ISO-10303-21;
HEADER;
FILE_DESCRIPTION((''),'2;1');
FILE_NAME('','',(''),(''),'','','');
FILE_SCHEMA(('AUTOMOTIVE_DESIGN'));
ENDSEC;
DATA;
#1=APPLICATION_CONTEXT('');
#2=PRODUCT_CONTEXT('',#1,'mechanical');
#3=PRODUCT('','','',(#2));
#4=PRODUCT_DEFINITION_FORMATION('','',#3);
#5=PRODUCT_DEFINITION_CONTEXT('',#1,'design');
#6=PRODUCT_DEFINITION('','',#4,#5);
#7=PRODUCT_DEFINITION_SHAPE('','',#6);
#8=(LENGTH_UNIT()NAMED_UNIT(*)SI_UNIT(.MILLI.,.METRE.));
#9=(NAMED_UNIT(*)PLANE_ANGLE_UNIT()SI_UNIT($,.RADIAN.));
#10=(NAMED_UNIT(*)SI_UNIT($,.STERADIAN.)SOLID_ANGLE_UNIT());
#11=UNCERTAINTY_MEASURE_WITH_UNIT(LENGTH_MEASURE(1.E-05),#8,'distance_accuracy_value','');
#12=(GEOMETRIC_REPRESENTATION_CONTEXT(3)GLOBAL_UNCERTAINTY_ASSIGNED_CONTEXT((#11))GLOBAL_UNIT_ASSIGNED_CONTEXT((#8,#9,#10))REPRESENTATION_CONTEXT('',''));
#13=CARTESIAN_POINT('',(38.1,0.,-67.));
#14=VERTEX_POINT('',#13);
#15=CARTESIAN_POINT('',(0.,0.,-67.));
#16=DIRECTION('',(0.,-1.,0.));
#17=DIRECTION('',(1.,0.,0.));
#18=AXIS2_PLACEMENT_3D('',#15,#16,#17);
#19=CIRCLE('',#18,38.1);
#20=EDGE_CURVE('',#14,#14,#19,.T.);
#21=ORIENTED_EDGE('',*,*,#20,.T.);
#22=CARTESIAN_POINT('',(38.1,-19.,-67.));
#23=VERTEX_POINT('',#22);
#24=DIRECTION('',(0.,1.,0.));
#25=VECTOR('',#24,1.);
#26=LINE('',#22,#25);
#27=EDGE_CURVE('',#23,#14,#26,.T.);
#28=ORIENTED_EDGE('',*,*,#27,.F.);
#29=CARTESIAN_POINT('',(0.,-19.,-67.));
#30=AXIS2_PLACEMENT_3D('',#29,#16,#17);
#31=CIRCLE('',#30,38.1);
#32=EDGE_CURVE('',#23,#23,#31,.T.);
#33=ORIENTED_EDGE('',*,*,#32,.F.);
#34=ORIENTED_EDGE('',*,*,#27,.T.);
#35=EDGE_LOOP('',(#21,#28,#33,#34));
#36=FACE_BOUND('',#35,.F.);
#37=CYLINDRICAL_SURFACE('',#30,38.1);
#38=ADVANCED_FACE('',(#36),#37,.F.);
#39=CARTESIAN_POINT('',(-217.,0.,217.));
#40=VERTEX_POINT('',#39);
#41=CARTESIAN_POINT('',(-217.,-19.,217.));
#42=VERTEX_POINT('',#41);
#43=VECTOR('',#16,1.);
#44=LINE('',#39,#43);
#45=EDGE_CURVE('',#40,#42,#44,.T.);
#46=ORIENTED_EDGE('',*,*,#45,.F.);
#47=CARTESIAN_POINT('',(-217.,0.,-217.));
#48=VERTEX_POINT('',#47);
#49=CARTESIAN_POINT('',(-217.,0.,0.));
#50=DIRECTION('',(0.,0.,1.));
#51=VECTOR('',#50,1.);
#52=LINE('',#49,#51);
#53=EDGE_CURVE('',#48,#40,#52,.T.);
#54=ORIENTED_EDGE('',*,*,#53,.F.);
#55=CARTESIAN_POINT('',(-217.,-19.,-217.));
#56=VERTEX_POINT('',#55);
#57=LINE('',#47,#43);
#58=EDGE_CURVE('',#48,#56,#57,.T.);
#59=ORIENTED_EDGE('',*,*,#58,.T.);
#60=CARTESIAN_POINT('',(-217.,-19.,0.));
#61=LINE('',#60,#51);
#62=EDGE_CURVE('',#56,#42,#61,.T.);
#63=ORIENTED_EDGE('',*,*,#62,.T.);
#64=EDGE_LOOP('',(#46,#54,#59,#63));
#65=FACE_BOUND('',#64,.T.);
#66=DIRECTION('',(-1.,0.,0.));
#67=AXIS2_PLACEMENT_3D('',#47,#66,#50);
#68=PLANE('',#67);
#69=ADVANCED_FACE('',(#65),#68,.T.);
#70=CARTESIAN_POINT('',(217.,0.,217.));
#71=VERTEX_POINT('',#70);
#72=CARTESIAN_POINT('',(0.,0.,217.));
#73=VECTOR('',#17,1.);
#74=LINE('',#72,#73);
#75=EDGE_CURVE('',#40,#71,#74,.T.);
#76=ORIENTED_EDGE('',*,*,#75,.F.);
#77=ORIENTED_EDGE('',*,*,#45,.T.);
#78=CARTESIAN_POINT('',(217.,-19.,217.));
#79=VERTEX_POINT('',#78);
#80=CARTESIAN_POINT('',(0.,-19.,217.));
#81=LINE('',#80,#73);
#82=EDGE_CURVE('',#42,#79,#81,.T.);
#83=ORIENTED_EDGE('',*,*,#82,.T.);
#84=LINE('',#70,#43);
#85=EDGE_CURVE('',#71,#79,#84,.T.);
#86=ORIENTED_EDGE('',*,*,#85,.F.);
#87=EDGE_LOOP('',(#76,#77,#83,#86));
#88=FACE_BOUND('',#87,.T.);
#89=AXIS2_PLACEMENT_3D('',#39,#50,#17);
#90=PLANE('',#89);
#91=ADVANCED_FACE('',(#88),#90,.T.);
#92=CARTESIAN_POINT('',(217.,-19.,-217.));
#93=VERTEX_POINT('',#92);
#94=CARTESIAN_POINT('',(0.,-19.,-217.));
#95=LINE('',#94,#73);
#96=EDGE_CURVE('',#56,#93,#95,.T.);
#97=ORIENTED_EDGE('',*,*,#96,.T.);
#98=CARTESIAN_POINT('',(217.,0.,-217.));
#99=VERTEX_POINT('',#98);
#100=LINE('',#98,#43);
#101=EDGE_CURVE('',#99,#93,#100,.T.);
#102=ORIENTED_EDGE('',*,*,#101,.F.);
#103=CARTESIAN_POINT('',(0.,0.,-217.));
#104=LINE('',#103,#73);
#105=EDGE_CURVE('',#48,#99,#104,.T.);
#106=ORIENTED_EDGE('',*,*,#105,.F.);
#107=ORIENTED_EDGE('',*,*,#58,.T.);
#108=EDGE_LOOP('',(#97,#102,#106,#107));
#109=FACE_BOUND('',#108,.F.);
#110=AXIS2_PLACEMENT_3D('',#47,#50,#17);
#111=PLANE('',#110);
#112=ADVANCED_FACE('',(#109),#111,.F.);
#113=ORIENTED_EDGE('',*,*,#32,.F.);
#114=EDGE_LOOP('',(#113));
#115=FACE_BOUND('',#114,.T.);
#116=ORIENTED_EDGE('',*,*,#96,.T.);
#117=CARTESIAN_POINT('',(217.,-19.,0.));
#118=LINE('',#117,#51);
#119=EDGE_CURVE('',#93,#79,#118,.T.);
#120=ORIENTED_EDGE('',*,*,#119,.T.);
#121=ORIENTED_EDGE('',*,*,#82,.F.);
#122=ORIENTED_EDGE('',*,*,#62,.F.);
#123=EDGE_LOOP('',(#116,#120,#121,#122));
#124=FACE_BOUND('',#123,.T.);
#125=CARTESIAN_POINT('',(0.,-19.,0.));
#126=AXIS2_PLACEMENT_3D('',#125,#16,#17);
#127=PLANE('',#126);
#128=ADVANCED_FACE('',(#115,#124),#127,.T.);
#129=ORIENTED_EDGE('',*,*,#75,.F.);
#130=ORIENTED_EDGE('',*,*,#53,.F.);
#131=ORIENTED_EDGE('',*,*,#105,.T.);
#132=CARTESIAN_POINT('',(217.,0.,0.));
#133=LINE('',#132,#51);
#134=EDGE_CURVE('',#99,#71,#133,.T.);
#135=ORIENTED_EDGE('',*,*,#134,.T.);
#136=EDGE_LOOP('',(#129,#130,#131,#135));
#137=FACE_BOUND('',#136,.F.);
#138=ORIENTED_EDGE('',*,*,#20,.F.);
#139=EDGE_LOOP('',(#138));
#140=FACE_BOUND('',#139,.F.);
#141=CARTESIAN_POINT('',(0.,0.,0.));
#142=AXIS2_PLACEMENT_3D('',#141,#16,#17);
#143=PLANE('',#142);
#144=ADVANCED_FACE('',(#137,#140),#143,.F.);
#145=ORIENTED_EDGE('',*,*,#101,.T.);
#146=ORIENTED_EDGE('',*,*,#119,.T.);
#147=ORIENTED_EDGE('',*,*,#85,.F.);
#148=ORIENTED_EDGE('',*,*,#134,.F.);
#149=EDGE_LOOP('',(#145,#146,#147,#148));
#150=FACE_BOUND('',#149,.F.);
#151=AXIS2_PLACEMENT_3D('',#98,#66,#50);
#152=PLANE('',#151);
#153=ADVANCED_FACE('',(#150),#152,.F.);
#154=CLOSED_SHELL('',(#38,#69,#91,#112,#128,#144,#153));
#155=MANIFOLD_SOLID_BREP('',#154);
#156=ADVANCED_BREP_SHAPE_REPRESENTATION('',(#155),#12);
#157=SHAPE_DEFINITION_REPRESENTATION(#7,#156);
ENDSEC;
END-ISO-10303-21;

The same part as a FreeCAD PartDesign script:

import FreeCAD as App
import Part
import Sketcher
Q = App.Units.Quantity


def add_polygon(sketch, points):
    """Adds a closed chain of lines whose ends are joined by coincident constraints."""
    first, n = sketch.GeometryCount, len(points)
    for a, b in zip(points, points[1:] + points[:1]):
        sketch.addGeometry(Part.LineSegment(App.Vector(*a, 0), App.Vector(*b, 0)), False)
    for i in range(n):
        sketch.addConstraint(Sketcher.Constraint("Coincident", first + i, 2, first + (i + 1) % n, 1))

doc = App.newDocument("Part")
body = doc.addObject("PartDesign::Body", "Body")

sketch1 = body.newObject("Sketcher::SketchObject", "Sketch")
sketch1.AttachmentSupport = (doc.getObject("XZ_Plane"), [""])
sketch1.MapMode = "FlatFace"
add_polygon(sketch1, [(-217, 217), (-217, -217), (217, -217), (217, 217)])
sketch1.addConstraint([
    Sketcher.Constraint("Vertical", 0),
    Sketcher.Constraint("Horizontal", 1),
    Sketcher.Constraint("Vertical", 2),
    Sketcher.Constraint("Horizontal", 3),
    Sketcher.Constraint("Symmetric", 0, 2, 2, 2, -1, 1),
    Sketcher.Constraint("Equal", 3, 0),
    Sketcher.Constraint("DistanceX", 1, 1, 1, 2, Q("434 mm")),
])
pad1 = body.newObject("PartDesign::Pad", "Pad")
pad1.Profile = sketch1
pad1.Length = 19

sketch2 = body.newObject("Sketcher::SketchObject", "Sketch001")
sketch2.AttachmentSupport = (doc.getObject("XZ_Plane"), [""])
sketch2.MapMode = "FlatFace"
sketch2.AttachmentOffset = App.Placement(App.Vector(0, 0, 19), App.Rotation())
sketch2.addGeometry(Part.Circle(App.Vector(0, -67, 0), App.Vector(0, 0, 1), 38), False)
sketch2.addConstraint([
    Sketcher.Constraint("PointOnObject", 0, 3, -2),
    Sketcher.Constraint("Diameter", 0, Q("76.2 mm")),
    Sketcher.Constraint("DistanceY", 0, 3, -1, 1, Q("67 mm")),
])
pocket1 = body.newObject("PartDesign::Pocket", "Pocket")
pocket1.Profile = sketch2
pocket1.Length = 25.4

doc.recompute()
